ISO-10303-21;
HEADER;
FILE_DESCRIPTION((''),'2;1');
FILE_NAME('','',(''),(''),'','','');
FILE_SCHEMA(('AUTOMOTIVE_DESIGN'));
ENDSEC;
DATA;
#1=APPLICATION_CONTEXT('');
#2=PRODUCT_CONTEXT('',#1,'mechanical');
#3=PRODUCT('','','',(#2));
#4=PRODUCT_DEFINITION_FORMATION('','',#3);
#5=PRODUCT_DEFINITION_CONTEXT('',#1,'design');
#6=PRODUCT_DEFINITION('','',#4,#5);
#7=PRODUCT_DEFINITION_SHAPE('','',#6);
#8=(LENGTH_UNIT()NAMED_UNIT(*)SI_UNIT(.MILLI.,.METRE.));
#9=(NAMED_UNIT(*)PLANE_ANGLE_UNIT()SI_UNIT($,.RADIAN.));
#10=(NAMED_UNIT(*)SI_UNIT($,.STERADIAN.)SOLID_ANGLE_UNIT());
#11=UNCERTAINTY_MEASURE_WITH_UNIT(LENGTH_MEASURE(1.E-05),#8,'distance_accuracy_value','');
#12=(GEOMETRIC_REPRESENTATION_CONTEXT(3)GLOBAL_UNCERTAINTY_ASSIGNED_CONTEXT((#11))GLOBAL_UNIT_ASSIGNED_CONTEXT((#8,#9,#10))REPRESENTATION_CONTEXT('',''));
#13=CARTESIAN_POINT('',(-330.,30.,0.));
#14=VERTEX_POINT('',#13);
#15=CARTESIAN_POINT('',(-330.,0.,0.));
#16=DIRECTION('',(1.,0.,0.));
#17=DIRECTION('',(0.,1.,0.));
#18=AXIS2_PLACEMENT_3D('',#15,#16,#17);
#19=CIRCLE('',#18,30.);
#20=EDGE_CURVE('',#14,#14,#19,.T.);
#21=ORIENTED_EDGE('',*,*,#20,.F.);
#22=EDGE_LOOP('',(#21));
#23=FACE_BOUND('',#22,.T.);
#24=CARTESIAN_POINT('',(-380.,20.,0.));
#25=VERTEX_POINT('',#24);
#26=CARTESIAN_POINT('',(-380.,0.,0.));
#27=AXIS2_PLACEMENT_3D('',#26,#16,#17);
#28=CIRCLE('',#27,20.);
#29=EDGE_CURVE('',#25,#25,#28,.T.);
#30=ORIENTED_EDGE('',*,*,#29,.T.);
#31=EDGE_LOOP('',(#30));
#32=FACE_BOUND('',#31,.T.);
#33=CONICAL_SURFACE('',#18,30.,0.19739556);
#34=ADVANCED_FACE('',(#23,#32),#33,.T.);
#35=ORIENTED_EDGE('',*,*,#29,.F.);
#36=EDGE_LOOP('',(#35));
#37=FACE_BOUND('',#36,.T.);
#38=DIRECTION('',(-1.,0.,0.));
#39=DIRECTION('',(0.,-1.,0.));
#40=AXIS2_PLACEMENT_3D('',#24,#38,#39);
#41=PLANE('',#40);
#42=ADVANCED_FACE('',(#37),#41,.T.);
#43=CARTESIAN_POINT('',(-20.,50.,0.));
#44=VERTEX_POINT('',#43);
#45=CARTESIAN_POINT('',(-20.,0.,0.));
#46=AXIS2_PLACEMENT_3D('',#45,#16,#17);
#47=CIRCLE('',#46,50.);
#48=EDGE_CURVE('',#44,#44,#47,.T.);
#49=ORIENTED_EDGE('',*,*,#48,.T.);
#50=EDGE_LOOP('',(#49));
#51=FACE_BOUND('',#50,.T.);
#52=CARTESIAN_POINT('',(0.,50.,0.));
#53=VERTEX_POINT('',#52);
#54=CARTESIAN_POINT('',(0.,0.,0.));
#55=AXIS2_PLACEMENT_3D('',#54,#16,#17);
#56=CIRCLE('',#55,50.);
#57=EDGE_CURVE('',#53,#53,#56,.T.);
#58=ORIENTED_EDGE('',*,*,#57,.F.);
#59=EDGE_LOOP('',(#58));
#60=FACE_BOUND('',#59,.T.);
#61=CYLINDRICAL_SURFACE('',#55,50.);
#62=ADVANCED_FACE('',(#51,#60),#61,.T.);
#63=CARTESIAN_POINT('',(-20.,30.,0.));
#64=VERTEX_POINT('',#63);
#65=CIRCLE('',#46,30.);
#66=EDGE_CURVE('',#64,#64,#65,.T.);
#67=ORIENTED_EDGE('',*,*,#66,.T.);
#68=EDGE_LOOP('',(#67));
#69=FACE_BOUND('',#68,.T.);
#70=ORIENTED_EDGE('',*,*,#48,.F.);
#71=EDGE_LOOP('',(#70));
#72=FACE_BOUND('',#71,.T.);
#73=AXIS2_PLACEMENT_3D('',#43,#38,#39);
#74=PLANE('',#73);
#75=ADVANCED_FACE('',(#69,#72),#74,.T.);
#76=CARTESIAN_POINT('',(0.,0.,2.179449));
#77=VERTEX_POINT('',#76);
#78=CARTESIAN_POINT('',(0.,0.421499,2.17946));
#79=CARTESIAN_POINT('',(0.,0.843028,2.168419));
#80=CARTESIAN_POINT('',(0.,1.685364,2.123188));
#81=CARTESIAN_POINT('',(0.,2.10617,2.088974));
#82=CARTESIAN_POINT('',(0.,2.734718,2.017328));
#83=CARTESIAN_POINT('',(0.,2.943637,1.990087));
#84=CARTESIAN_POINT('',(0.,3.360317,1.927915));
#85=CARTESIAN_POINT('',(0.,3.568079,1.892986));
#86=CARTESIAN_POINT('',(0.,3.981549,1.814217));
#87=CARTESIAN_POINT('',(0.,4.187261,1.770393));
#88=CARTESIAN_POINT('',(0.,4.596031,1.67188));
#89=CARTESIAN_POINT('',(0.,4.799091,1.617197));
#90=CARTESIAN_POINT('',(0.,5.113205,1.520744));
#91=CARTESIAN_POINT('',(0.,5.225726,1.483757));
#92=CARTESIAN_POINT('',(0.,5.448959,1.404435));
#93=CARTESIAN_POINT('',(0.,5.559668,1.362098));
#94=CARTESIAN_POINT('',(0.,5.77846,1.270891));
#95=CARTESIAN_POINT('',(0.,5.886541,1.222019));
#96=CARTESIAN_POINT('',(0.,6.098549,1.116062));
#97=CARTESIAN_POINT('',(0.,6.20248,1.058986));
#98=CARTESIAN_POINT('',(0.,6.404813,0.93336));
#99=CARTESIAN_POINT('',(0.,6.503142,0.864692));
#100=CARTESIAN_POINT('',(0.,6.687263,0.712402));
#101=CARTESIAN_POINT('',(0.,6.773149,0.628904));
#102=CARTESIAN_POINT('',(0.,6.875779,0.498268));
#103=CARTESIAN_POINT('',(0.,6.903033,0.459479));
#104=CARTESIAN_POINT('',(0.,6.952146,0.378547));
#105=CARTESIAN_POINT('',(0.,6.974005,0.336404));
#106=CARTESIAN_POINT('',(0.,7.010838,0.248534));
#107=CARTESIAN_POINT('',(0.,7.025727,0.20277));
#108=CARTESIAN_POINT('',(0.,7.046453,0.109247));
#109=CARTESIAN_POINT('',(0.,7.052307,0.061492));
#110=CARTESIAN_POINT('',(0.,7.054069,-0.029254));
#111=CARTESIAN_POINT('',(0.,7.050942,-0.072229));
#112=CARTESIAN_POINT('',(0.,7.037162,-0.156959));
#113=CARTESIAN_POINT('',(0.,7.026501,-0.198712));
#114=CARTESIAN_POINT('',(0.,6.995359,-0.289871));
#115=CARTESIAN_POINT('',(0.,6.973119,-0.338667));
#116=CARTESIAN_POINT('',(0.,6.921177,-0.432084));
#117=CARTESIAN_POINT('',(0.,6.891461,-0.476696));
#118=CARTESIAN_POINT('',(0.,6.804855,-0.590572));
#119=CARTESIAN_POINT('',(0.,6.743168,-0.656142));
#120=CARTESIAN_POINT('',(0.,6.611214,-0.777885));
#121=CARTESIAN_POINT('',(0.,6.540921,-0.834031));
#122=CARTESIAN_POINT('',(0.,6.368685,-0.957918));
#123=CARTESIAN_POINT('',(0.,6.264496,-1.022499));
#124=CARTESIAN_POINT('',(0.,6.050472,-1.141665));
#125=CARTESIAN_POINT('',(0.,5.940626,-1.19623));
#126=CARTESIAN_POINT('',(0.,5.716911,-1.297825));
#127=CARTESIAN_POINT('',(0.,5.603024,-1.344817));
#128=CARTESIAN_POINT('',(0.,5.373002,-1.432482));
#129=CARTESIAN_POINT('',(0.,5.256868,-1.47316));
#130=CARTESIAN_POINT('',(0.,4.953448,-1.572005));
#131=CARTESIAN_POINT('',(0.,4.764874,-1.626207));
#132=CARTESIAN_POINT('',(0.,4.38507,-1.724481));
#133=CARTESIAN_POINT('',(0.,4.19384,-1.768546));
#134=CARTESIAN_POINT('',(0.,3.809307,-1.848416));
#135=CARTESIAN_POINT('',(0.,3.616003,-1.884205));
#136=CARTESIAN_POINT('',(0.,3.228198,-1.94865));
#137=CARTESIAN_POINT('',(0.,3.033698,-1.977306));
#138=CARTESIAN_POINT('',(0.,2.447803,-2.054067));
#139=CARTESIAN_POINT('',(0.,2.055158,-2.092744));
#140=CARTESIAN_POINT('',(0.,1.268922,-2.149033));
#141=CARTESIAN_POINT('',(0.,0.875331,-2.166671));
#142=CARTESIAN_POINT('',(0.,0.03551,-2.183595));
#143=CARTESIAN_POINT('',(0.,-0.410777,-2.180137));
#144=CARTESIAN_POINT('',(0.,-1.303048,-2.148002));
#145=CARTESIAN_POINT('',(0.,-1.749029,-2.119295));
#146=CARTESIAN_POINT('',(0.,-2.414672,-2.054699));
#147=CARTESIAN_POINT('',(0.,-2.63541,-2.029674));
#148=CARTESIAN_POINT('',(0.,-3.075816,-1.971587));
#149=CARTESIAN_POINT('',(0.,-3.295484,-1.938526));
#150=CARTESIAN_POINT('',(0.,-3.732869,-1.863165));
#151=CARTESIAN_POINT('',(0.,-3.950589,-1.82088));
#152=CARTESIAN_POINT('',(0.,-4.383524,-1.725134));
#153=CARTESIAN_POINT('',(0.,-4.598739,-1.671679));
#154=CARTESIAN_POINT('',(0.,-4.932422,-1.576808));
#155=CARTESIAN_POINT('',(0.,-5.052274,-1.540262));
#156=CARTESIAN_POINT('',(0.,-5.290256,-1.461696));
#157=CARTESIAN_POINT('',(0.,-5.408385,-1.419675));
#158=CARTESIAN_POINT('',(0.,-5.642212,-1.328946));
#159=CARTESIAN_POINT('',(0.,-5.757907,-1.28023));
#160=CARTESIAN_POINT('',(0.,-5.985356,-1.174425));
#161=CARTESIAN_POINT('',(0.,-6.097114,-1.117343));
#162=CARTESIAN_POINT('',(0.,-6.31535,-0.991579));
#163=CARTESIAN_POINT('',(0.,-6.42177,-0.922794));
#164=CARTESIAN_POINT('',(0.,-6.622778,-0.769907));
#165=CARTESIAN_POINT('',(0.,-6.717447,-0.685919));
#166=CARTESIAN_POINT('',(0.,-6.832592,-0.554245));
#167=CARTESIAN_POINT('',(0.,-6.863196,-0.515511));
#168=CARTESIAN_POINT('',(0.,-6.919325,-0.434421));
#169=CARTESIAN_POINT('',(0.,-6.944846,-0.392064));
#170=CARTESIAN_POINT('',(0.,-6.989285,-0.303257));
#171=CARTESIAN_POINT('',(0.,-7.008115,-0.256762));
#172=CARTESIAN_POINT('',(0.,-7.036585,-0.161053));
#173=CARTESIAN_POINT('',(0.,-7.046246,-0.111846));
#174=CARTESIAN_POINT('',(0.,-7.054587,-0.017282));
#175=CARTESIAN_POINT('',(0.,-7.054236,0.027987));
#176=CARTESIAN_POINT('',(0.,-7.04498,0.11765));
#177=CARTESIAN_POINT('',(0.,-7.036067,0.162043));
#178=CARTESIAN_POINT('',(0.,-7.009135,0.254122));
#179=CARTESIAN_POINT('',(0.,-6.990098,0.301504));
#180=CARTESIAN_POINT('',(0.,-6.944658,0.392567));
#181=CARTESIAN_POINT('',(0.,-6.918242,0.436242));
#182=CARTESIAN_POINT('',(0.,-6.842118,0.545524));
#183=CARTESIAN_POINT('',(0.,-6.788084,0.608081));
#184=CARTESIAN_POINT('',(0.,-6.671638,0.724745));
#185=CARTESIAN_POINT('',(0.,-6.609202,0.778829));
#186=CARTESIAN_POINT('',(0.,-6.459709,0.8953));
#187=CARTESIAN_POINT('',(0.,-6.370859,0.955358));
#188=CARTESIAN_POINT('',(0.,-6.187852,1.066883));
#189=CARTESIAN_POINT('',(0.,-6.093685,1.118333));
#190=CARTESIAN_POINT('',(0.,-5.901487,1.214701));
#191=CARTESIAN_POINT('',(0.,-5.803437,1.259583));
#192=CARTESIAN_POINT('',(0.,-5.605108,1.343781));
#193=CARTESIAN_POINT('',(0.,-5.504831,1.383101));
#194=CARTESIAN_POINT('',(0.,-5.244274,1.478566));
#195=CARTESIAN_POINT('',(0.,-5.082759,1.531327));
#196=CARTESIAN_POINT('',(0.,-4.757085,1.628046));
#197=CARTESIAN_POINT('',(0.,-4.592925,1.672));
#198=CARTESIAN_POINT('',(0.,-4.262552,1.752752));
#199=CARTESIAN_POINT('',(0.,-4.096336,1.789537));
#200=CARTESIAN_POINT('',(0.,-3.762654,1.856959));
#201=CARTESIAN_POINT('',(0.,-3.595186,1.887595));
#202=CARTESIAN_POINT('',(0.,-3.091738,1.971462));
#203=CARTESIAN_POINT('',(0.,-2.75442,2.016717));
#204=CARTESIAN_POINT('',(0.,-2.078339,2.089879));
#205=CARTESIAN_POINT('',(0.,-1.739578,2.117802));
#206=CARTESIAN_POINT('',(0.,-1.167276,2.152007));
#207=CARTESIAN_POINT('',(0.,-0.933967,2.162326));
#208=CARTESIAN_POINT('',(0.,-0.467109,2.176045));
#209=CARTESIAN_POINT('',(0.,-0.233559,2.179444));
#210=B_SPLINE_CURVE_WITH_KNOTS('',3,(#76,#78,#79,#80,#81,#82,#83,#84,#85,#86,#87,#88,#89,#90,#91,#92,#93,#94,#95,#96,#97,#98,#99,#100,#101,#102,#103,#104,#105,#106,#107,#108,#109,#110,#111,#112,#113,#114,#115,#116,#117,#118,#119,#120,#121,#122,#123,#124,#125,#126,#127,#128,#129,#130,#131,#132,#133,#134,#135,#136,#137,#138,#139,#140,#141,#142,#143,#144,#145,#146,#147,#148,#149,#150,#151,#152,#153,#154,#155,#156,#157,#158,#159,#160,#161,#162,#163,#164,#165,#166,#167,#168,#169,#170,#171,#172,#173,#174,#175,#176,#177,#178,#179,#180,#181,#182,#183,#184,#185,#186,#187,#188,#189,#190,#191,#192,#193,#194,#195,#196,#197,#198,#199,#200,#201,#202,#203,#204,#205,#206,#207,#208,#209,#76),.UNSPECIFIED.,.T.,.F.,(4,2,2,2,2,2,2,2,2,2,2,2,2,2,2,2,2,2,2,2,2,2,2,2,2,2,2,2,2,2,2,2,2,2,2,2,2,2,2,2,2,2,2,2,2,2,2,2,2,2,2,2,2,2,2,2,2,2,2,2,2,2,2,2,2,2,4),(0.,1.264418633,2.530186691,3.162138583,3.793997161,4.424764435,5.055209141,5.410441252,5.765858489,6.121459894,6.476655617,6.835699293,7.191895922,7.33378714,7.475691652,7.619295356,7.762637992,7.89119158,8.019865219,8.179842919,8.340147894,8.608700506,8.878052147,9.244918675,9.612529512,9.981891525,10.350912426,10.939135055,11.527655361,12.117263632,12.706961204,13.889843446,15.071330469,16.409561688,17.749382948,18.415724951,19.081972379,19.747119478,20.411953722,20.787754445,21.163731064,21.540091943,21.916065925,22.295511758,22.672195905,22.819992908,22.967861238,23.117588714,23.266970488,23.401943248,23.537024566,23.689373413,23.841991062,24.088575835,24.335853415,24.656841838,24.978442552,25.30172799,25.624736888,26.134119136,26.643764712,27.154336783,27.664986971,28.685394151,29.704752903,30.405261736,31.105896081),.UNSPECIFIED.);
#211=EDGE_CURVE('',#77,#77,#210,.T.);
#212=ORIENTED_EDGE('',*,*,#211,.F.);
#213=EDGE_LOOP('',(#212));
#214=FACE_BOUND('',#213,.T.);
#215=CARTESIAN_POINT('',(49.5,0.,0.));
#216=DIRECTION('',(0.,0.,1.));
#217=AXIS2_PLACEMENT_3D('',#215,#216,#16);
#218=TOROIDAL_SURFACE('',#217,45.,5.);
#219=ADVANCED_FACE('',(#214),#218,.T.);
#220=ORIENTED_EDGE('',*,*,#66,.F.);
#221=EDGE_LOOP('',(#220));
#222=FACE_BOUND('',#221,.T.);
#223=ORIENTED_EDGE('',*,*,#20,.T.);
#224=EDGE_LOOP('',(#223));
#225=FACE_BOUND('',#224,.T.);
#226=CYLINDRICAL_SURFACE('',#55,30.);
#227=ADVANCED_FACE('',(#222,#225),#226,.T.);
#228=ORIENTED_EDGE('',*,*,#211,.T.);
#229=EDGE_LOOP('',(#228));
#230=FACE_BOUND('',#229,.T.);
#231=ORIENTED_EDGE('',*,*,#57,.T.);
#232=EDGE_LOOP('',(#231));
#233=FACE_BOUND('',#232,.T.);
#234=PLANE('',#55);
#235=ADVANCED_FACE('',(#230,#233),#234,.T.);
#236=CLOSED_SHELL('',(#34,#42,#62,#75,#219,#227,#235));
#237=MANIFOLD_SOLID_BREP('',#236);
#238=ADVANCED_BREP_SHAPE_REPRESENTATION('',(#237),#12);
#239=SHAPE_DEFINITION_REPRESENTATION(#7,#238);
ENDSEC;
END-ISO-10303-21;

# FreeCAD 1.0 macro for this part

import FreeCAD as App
import Part
import Sketcher
from FreeCAD import Vector

doc = App.newDocument("Part")
body = doc.addObject("PartDesign::Body", "Body")

# Sketch on XY plane
sketch1 = body.newObject("Sketcher::SketchObject", "Sketch")
sketch1.AttachmentSupport = (doc.getObject("XY_Plane"), [""])
sketch1.MapMode = "FlatFace"
sketch1.addGeometry(Part.LineSegment(Vector(-380, 0, 0), Vector(0, 0, 0)), False)
sketch1.addGeometry(Part.LineSegment(Vector(0, 0, 0), Vector(0, 50, 0)), False)
sketch1.addGeometry(Part.LineSegment(Vector(0, 50, 0), Vector(-20, 50, 0)), False)
sketch1.addGeometry(Part.LineSegment(Vector(-20, 50, 0), Vector(-20, 30, 0)), False)
sketch1.addGeometry(Part.LineSegment(Vector(-20, 30, 0), Vector(-330, 30, 0)), False)
sketch1.addGeometry(Part.LineSegment(Vector(-330, 30, 0), Vector(-380, 20, 0)), False)
sketch1.addGeometry(Part.LineSegment(Vector(-380, 20, 0), Vector(-380, 0, 0)), False)
sketch1.addConstraint(Sketcher.Constraint("Coincident", 0, 2, 1, 1))
sketch1.addConstraint(Sketcher.Constraint("Coincident", 1, 2, 2, 1))
sketch1.addConstraint(Sketcher.Constraint("Coincident", 2, 2, 3, 1))
sketch1.addConstraint(Sketcher.Constraint("Coincident", 3, 2, 4, 1))
sketch1.addConstraint(Sketcher.Constraint("Coincident", 4, 2, 5, 1))
sketch1.addConstraint(Sketcher.Constraint("Coincident", 5, 2, 6, 1))
sketch1.addConstraint(Sketcher.Constraint("Coincident", 6, 2, 0, 1))
sketch1.addConstraint(Sketcher.Constraint("Horizontal", 0))
sketch1.addConstraint(Sketcher.Constraint("Vertical", 1))
sketch1.addConstraint(Sketcher.Constraint("Horizontal", 2))
sketch1.addConstraint(Sketcher.Constraint("Vertical", 3))
sketch1.addConstraint(Sketcher.Constraint("Horizontal", 4))
sketch1.addConstraint(Sketcher.Constraint("Vertical", 6))
sketch1.addConstraint(Sketcher.Constraint("Coincident", 0, 2, -1, 1))
sketch1.addConstraint(Sketcher.Constraint("Equal", 2, 3))
sketch1.addConstraint(Sketcher.Constraint("Equal", 3, 6))
sketch1.addConstraint(Sketcher.Constraint("DistanceX", 0, 1, 0, 2, 380.0))
sketch1.addConstraint(Sketcher.Constraint("DistanceX", 2, 2, 2, 1, 20.0))
sketch1.addConstraint(Sketcher.Constraint("DistanceX", 4, 2, 4, 1, 310.0))
sketch1.addConstraint(Sketcher.Constraint("DistanceY", 1, 1, 1, 2, 50.0))
revolution = body.newObject("PartDesign::Revolution", "Revolution")
revolution.Profile = sketch1
revolution.ReferenceAxis = (sketch1, ["H_Axis"])
revolution.Angle = 360

# Sketch on XZ plane
sketch2 = body.newObject("Sketcher::SketchObject", "Sketch001")
sketch2.AttachmentSupport = (doc.getObject("XZ_Plane"), [""])
sketch2.MapMode = "FlatFace"
sketch2.addGeometry(Part.Circle(Vector(4, 0, 0), Vector(0, 0, 1), 5), False)
sketch2.addGeometry(Part.LineSegment(Vector(50, 0, 0), Vector(50, -10, 0)), True)  # axis
sketch2.addConstraint(Sketcher.Constraint("Vertical", 1))
sketch2.addConstraint(Sketcher.Constraint("PointOnObject", 0, 3, -1))
sketch2.addConstraint(Sketcher.Constraint("PointOnObject", 1, 1, -1))
sketch2.addConstraint(Sketcher.Constraint("Diameter", 0, 10.0))
sketch2.addConstraint(Sketcher.Constraint("DistanceY", 1, 2, 1, 1, 10.0))
sketch2.addConstraint(Sketcher.Constraint("DistanceX", 0, 3, 1, 1, 45.0))
sketch2.addConstraint(Sketcher.Constraint("DistanceX", -1, 1, 0, 3, 4.5))
revolution2 = body.newObject("PartDesign::Revolution", "Revolution001")
revolution2.Profile = sketch2
revolution2.ReferenceAxis = (sketch2, ["Axis0"])
revolution2.Angle = 360

doc.recompute()
